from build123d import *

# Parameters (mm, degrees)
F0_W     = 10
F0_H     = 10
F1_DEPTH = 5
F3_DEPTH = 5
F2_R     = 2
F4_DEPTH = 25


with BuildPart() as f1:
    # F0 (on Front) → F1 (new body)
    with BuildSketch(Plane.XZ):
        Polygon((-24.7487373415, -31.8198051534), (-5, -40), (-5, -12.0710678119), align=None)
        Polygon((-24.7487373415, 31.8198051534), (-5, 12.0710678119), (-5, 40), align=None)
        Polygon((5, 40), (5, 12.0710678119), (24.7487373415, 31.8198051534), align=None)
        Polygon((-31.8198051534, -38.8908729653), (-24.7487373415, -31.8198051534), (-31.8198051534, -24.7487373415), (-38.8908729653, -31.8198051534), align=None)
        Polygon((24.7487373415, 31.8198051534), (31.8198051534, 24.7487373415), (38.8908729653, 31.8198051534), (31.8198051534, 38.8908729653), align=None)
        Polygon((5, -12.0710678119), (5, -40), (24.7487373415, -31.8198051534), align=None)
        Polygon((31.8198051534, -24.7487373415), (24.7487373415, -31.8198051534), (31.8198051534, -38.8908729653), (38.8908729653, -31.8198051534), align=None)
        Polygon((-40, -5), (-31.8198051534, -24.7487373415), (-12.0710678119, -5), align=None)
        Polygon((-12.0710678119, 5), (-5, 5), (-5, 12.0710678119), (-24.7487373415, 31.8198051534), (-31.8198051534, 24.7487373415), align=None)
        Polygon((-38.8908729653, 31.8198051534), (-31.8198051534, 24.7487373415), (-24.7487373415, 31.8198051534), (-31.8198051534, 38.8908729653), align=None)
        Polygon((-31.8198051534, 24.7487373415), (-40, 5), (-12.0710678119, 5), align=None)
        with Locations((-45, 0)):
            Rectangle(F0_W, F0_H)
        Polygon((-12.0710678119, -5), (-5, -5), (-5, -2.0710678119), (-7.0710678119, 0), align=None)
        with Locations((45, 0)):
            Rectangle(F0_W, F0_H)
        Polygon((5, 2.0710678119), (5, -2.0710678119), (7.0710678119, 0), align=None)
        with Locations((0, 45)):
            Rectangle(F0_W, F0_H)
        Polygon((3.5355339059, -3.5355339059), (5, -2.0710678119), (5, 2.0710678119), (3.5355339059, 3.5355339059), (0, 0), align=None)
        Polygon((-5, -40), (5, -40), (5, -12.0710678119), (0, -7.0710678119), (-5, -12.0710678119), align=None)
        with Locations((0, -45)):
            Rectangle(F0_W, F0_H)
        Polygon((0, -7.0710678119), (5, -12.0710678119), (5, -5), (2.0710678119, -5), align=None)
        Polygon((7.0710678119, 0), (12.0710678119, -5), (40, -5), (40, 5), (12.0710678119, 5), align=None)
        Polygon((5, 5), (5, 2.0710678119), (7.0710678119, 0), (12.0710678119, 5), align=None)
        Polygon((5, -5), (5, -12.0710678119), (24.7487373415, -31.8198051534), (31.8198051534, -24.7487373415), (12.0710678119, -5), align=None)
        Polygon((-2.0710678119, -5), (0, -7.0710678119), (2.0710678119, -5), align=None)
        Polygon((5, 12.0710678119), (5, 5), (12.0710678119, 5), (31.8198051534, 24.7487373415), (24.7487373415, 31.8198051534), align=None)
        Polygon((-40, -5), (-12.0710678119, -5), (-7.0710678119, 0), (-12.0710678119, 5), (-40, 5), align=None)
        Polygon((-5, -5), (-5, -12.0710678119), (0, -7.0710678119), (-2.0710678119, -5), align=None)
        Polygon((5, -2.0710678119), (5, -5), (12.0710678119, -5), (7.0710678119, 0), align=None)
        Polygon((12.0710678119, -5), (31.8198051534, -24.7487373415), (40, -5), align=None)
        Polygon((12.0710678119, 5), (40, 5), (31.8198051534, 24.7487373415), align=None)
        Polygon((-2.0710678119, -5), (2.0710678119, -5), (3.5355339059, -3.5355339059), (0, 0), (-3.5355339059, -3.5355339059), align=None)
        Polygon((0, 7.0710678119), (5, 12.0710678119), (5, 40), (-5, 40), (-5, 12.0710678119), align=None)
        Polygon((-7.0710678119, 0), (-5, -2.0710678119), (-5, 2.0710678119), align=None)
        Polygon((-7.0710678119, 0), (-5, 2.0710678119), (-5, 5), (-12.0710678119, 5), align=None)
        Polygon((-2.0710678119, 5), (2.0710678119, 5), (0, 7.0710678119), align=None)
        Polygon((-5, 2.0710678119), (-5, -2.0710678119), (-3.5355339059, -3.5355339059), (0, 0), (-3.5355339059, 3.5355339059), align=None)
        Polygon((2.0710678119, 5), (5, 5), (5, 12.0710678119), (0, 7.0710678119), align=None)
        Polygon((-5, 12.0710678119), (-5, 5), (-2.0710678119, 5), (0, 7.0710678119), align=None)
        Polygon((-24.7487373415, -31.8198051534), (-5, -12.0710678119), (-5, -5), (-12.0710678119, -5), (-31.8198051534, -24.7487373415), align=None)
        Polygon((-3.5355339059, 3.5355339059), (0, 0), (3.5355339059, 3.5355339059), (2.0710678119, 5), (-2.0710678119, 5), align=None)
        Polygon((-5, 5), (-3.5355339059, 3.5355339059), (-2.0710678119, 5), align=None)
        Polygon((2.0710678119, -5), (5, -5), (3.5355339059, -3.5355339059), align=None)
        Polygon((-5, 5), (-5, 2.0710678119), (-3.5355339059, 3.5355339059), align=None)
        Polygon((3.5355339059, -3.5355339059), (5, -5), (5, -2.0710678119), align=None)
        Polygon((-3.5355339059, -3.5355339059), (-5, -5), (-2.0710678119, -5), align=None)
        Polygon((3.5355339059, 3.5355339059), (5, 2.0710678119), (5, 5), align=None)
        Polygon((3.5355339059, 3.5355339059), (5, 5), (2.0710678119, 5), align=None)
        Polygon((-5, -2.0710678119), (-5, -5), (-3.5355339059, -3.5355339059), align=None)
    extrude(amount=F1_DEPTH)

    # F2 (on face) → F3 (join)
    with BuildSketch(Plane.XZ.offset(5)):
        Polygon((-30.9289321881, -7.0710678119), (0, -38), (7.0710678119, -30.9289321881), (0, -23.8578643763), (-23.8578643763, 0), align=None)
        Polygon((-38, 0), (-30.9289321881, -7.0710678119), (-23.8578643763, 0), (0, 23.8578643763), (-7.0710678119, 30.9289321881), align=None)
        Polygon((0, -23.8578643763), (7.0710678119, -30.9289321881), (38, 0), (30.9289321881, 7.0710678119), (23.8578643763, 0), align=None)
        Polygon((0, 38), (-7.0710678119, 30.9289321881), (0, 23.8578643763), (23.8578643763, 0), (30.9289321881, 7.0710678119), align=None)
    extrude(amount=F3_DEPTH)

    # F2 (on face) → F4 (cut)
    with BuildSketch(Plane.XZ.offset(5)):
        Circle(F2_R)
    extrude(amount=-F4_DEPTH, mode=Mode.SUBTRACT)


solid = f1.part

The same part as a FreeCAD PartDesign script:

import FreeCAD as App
import Part
import Sketcher

V = App.Vector
Q = App.Units.Quantity


def add_polygon(sketch, points):
    """Adds a closed chain of lines whose ends are joined by coincident constraints."""
    first, n = sketch.GeometryCount, len(points)
    for a, b in zip(points, points[1:] + points[:1]):
        sketch.addGeometry(Part.LineSegment(App.Vector(*a, 0), App.Vector(*b, 0)), False)
    for i in range(n):
        sketch.addConstraint(Sketcher.Constraint("Coincident", first + i, 2, first + (i + 1) % n, 1))

doc = App.newDocument("Part")
params = doc.addObject("Spreadsheet::Sheet", "Params")
for row, (alias, value) in enumerate([
    ("sketch1_width", "10 mm"),
    ("sketch1_length", "10 mm"),
    ("pad1_length", "5 mm"),
    ("pad2_length", "5 mm"),
    ("sketch3_diameter", "4 mm"),
    ("pocket1_length", "25 mm"),
], start=1):
    params.set(f"A{row}", alias)
    params.set(f"B{row}", "=" + value)
    params.setAlias(f"B{row}", alias)

body = doc.addObject("PartDesign::Body", "Body")

sketch1 = body.newObject("Sketcher::SketchObject", "Sketch")
sketch1.AttachmentSupport = (doc.getObject("XZ_Plane"), [""])
sketch1.MapMode = "FlatFace"
add_polygon(sketch1, [(-40, -5), (-31.819805, -24.748737), (-38.890873, -31.819805), (-31.819805, -38.890873), (-24.748737, -31.819805), (-5, -40), (-5, -50), (5, -50), (5, -40), (24.748737, -31.819805), (31.819805, -38.890873), (38.890873, -31.819805), (31.819805, -24.748737), (40, -5), (50, -5), (50, 5), (40, 5), (31.819805, 24.748737), (38.890873, 31.819805), (31.819805, 38.890873), (24.748737, 31.819805), (5, 40), (5, 50), (-5, 50), (-5, 40), (-24.748737, 31.819805), (-31.819805, 38.890873), (-38.890873, 31.819805), (-31.819805, 24.748737), (-40, 5), (-50, 5), (-50, -5)])
sketch1.addConstraint([
    Sketcher.Constraint("Vertical", 5),
    Sketcher.Constraint("Horizontal", 6),
    Sketcher.Constraint("Vertical", 7),
    Sketcher.Constraint("Horizontal", 13),
    Sketcher.Constraint("Vertical", 14),
    Sketcher.Constraint("Horizontal", 15),
    Sketcher.Constraint("Vertical", 21),
    Sketcher.Constraint("Horizontal", 22),
    Sketcher.Constraint("Vertical", 23),
    Sketcher.Constraint("Horizontal", 29),
    Sketcher.Constraint("Vertical", 30),
    Sketcher.Constraint("Horizontal", 31),
    Sketcher.Constraint("Symmetric", 0, 2, 16, 2, -1, 1),
    Sketcher.Constraint("Symmetric", 1, 2, 17, 2, -1, 1),
    Sketcher.Constraint("Symmetric", 2, 2, 18, 2, -1, 1),
    Sketcher.Constraint("Symmetric", 3, 2, 19, 2, -1, 1),
    Sketcher.Constraint("Symmetric", 4, 2, 20, 2, -1, 1),
    Sketcher.Constraint("Symmetric", 6, 2, 22, 2, -1, 1),
    Sketcher.Constraint("Symmetric", 8, 2, 24, 2, -1, 1),
    Sketcher.Constraint("Symmetric", 9, 2, 25, 2, -1, 1),
    Sketcher.Constraint("Symmetric", 10, 2, 26, 2, -1, 1),
    Sketcher.Constraint("Symmetric", 11, 2, 27, 2, -1, 1),
    Sketcher.Constraint("Symmetric", 12, 2, 28, 2, -1, 1),
    Sketcher.Constraint("Symmetric", 14, 2, 30, 2, -1, 1),
    Sketcher.Constraint("Symmetric", 4, 2, 7, 2, -2),
    Sketcher.Constraint("Symmetric", 3, 2, 8, 2, -2),
    Sketcher.Constraint("Symmetric", 2, 2, 9, 2, -2),
    Sketcher.Constraint("Symmetric", 1, 2, 10, 2, -2),
    Sketcher.Constraint("Symmetric", 0, 2, 11, 2, -2),
    Sketcher.Constraint("Symmetric", 15, 2, 28, 2, -2),
    Sketcher.Constraint("Perpendicular", 1, 2),
    Sketcher.Constraint("Perpendicular", 2, 3),
    Sketcher.Constraint("Perpendicular", 0, 8),
    Sketcher.Constraint("Perpendicular", 3, 9),
    Sketcher.Constraint("Perpendicular", 4, 12),
    Sketcher.Constraint("Perpendicular", 16, 24),
    Sketcher.Constraint("Horizontal", 1, 2, 3, 2),
    Sketcher.Constraint("Vertical", 0, 2, 2, 2),
    Sketcher.Constraint("Equal", 6, 13),
    Sketcher.Constraint("Equal", 31, 5),
    Sketcher.Constraint("Equal", 7, 14),
    Sketcher.Constraint("Equal", 0, 4),
    Sketcher.Constraint("DistanceX", 6, 1, 6, 2, Q("10 mm")),
    Sketcher.Constraint("Distance", 1, Q("10 mm")),
    Sketcher.Constraint("DistanceY", 4, 2, -1, 1, Q("40 mm")),
    Sketcher.Constraint("Angle", 0, Q("-67.5 deg")),
])
sketch1.setExpression("Constraints[74]", "Params.sketch1_width")
sketch1.setExpression("Constraints[75]", "Params.sketch1_length")
pad1 = body.newObject("PartDesign::Pad", "Pad")
pad1.Profile = sketch1
pad1.setExpression("Length", "Params.pad1_length")

sketch2 = body.newObject("Sketcher::SketchObject", "Sketch001")
sketch2.AttachmentSupport = (doc.getObject("XZ_Plane"), [""])
sketch2.MapMode = "FlatFace"
sketch2.AttachmentOffset = App.Placement(V(0, 0, 5), App.Rotation())
add_polygon(sketch2, [(0, -38), (38, 0), (0, 38), (-38, 0)])
add_polygon(sketch2, [(23.857864, 0), (0, -23.857864), (-23.857864, 0), (0, 23.857864)])
sketch2.addConstraint([
    Sketcher.Constraint("Symmetric", 0, 2, 2, 2, -1, 1),
    Sketcher.Constraint("Symmetric", 1, 2, 3, 2, -1, 1),
    Sketcher.Constraint("Symmetric", 4, 2, 6, 2, -1, 1),
    Sketcher.Constraint("Symmetric", 5, 2, 7, 2, -1, 1),
    Sketcher.Constraint("PointOnObject", 0, 2, -1),
    Sketcher.Constraint("PointOnObject", 1, 2, -2),
    Sketcher.Constraint("PointOnObject", 4, 2, -2),
    Sketcher.Constraint("PointOnObject", 5, 2, -1),
    Sketcher.Constraint("Perpendicular", 0, 1),
    Sketcher.Constraint("Perpendicular", 3, 4),
    Sketcher.Constraint("DistanceX", -1, 1, 0, 2, Q("38 mm")),
    Sketcher.Constraint("DistanceY", 4, 2, 6, 2, Q("47.715729 mm")),
])
pad2 = body.newObject("PartDesign::Pad", "Pad001")
pad2.Profile = sketch2
pad2.setExpression("Length", "Params.pad2_length")

sketch3 = body.newObject("Sketcher::SketchObject", "Sketch002")
sketch3.AttachmentSupport = (doc.getObject("XZ_Plane"), [""])
sketch3.MapMode = "FlatFace"
sketch3.AttachmentOffset = App.Placement(V(0, 0, 5), App.Rotation())
sketch3.addGeometry(Part.Circle(V(0, 0, 0), V(0, 0, 1), 2), False)
sketch3.addConstraint([
    Sketcher.Constraint("Coincident", 0, 3, -1, 1),
    Sketcher.Constraint("Diameter", 0, Q("4 mm")),
])
sketch3.setExpression("Constraints[1]", "Params.sketch3_diameter")
pocket1 = body.newObject("PartDesign::Pocket", "Pocket")
pocket1.Profile = sketch3
pocket1.setExpression("Length", "Params.pocket1_length")

doc.recompute()
